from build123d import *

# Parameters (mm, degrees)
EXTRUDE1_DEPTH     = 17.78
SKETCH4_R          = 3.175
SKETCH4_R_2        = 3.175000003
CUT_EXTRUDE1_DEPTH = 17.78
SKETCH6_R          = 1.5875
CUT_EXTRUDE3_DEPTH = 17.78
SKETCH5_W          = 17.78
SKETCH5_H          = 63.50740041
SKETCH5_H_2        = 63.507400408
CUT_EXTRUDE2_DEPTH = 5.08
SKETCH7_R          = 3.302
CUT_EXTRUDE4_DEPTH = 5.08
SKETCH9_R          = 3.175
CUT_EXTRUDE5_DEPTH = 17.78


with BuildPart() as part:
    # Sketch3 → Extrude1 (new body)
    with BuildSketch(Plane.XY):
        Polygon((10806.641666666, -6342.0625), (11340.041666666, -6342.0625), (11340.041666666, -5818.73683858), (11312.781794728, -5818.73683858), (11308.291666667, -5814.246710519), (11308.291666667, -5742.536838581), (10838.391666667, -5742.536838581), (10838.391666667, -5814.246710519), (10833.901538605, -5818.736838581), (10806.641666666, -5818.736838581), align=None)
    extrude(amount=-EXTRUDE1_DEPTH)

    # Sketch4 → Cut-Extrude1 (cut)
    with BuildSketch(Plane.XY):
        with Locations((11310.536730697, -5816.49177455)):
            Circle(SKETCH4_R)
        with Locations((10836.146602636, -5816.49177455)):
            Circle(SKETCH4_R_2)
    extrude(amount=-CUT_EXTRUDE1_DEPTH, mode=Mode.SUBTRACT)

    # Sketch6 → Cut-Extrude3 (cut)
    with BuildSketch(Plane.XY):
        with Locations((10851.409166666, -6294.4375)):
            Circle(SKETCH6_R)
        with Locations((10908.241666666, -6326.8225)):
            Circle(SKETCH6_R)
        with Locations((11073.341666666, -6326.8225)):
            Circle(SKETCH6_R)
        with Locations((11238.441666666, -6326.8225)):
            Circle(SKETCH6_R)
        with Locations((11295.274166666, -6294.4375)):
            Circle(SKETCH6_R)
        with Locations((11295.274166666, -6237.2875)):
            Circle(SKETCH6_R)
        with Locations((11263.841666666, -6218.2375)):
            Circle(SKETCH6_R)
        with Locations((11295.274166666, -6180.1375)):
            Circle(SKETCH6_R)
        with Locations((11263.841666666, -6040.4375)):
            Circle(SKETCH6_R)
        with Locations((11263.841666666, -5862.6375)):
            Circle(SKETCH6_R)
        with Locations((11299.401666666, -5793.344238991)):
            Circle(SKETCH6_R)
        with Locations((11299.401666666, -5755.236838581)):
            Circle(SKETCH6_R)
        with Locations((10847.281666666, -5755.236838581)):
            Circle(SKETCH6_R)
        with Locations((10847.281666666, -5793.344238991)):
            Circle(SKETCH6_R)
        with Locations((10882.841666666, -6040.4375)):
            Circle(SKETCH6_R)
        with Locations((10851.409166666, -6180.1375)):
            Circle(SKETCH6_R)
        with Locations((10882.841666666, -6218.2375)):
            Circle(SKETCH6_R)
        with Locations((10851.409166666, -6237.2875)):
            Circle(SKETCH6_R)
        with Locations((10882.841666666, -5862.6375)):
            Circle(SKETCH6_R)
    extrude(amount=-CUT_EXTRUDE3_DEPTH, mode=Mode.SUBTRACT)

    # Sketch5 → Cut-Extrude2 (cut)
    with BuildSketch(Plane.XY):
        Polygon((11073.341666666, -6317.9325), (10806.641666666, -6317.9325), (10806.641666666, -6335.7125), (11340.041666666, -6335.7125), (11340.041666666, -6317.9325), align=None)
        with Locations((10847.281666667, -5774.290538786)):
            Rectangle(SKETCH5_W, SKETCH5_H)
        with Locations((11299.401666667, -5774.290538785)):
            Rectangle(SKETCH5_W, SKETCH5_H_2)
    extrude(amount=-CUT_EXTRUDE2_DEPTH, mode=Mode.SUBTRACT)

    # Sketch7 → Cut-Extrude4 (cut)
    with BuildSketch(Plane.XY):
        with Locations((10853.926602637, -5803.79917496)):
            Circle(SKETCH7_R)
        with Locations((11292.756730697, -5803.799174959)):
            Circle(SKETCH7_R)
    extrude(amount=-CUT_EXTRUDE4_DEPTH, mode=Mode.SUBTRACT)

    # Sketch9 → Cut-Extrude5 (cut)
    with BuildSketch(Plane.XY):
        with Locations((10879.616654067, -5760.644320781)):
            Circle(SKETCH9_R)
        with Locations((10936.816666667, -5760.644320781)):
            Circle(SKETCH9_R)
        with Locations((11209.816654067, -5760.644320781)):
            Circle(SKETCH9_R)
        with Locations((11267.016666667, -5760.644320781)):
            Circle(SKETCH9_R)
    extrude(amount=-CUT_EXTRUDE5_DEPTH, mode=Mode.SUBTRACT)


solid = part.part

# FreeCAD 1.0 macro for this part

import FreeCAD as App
import Part
import Sketcher

V = App.Vector
Q = App.Units.Quantity

doc = App.newDocument("Part")
body = doc.addObject("PartDesign::Body", "Body")

sketch1 = doc.addObject("Sketcher::SketchObject", "Sketch")
body.addObject(sketch1)
sketch1.AttachmentSupport = (doc.XY_Plane, [""])
sketch1.MapMode = "FlatFace"
sketch1.addGeometry(Part.LineSegment(V(10807, -6342, 0), V(11340, -6342, 0)), False)
sketch1.addGeometry(Part.LineSegment(V(11340, -6342, 0), V(11340, -5819, 0)), False)
sketch1.addGeometry(Part.LineSegment(V(11340, -5819, 0), V(11313, -5819, 0)), False)
sketch1.addGeometry(Part.LineSegment(V(11313, -5819, 0), V(11308, -5814, 0)), False)
sketch1.addGeometry(Part.LineSegment(V(11308, -5814, 0), V(11308, -5743, 0)), False)
sketch1.addGeometry(Part.LineSegment(V(11308, -5743, 0), V(10838, -5743, 0)), False)
sketch1.addGeometry(Part.LineSegment(V(10838, -5743, 0), V(10838, -5814, 0)), False)
sketch1.addGeometry(Part.LineSegment(V(10838, -5814, 0), V(10834, -5819, 0)), False)
sketch1.addGeometry(Part.LineSegment(V(10834, -5819, 0), V(10807, -5819, 0)), False)
sketch1.addGeometry(Part.LineSegment(V(10807, -5819, 0), V(10807, -6342, 0)), False)
sketch1.addConstraint(Sketcher.Constraint("Coincident", 0, 2, 1, 1))
sketch1.addConstraint(Sketcher.Constraint("Coincident", 1, 2, 2, 1))
sketch1.addConstraint(Sketcher.Constraint("Coincident", 2, 2, 3, 1))
sketch1.addConstraint(Sketcher.Constraint("Coincident", 3, 2, 4, 1))
sketch1.addConstraint(Sketcher.Constraint("Coincident", 4, 2, 5, 1))
sketch1.addConstraint(Sketcher.Constraint("Coincident", 5, 2, 6, 1))
sketch1.addConstraint(Sketcher.Constraint("Coincident", 6, 2, 7, 1))
sketch1.addConstraint(Sketcher.Constraint("Coincident", 7, 2, 8, 1))
sketch1.addConstraint(Sketcher.Constraint("Coincident", 8, 2, 9, 1))
sketch1.addConstraint(Sketcher.Constraint("Coincident", 9, 2, 0, 1))
sketch1.addConstraint(Sketcher.Constraint("Horizontal", 0))
sketch1.addConstraint(Sketcher.Constraint("Vertical", 1))
sketch1.addConstraint(Sketcher.Constraint("Horizontal", 2))
sketch1.addConstraint(Sketcher.Constraint("Vertical", 4))
sketch1.addConstraint(Sketcher.Constraint("Horizontal", 5))
sketch1.addConstraint(Sketcher.Constraint("Vertical", 6))
sketch1.addConstraint(Sketcher.Constraint("Horizontal", 8))
sketch1.addConstraint(Sketcher.Constraint("Vertical", 9))
sketch1.addConstraint(Sketcher.Constraint("Perpendicular", 3, 7))
sketch1.addConstraint(Sketcher.Constraint("Horizontal", 3, 2, 6, 2))
sketch1.addConstraint(Sketcher.Constraint("Horizontal", 2, 2, 7, 2))
sketch1.addConstraint(Sketcher.Constraint("Equal", 2, 8))
sketch1.addConstraint(Sketcher.Constraint("Equal", 3, 7))
sketch1.addConstraint(Sketcher.Constraint("DistanceX", 0, 1, 0, 2, Q("21 in")))
sketch1.addConstraint(Sketcher.Constraint("DistanceX", 5, 2, 5, 1, Q("18.5 in")))
sketch1.addConstraint(Sketcher.Constraint("DistanceY", 2, 2, 4, 2, Q("3 in")))
sketch1.addConstraint(Sketcher.Constraint("Distance", 3, Q("0.25 in")))
sketch1.addConstraint(Sketcher.Constraint("DistanceY", 0, 2, -1, 1, Q("249.6875 in")))
sketch1.addConstraint(Sketcher.Constraint("DistanceY", 1, 1, 1, 2, 523.325661))
sketch1.addConstraint(Sketcher.Constraint("DistanceX", -1, 1, 7, 2, 10833.901539))
pad1 = doc.addObject("PartDesign::Pad", "Pad")
body.addObject(pad1)
pad1.Profile = sketch1
pad1.Length = Q("0.7 in")
pad1.Reversed = True

sketch2 = doc.addObject("Sketcher::SketchObject", "Sketch001")
body.addObject(sketch2)
sketch2.AttachmentSupport = (doc.XY_Plane, [""])
sketch2.MapMode = "FlatFace"
sketch2.addGeometry(Part.Circle(V(11310.5, -5816.5, 0), V(0, 0, 1), 3.2), False)
sketch2.addGeometry(Part.Circle(V(10836.1, -5816.5, 0), V(0, 0, 1), 3.2), False)
sketch2.addConstraint(Sketcher.Constraint("Equal", 0, 1))
sketch2.addConstraint(Sketcher.Constraint("Horizontal", 0, 3, 1, 3))
sketch2.addConstraint(Sketcher.Constraint("Diameter", 0, Q("0.25 in")))
sketch2.addConstraint(Sketcher.Constraint("DistanceX", -1, 1, 0, 3, 11310.536731))
sketch2.addConstraint(Sketcher.Constraint("DistanceX", 1, 3, 0, 3, 474.390128))
sketch2.addConstraint(Sketcher.Constraint("DistanceY", 0, 3, -1, 1, 5816.491775))
pocket1 = doc.addObject("PartDesign::Pocket", "Pocket")
body.addObject(pocket1)
pocket1.Profile = sketch2
pocket1.Length = Q("0.7 in")

sketch3 = doc.addObject("Sketcher::SketchObject", "Sketch002")
body.addObject(sketch3)
sketch3.AttachmentSupport = (doc.XY_Plane, [""])
sketch3.MapMode = "FlatFace"
sketch3.addGeometry(Part.Circle(V(10851.4, -6294.4, 0), V(0, 0, 1), 1.6), False)
sketch3.addGeometry(Part.Circle(V(10908.2, -6326.8, 0), V(0, 0, 1), 1.6), False)
sketch3.addGeometry(Part.Circle(V(11073.3, -6326.8, 0), V(0, 0, 1), 1.6), False)
sketch3.addGeometry(Part.Circle(V(11238.4, -6326.8, 0), V(0, 0, 1), 1.6), False)
sketch3.addGeometry(Part.Circle(V(11295.3, -6294.4, 0), V(0, 0, 1), 1.6), False)
sketch3.addGeometry(Part.Circle(V(11295.3, -6237.3, 0), V(0, 0, 1), 1.6), False)
sketch3.addGeometry(Part.Circle(V(11263.8, -6218.2, 0), V(0, 0, 1), 1.6), False)
sketch3.addGeometry(Part.Circle(V(11295.3, -6180.1, 0), V(0, 0, 1), 1.6), False)
sketch3.addGeometry(Part.Circle(V(11263.8, -6040.4, 0), V(0, 0, 1), 1.6), False)
sketch3.addGeometry(Part.Circle(V(11263.8, -5862.6, 0), V(0, 0, 1), 1.6), False)
sketch3.addGeometry(Part.Circle(V(11299.4, -5793.3, 0), V(0, 0, 1), 1.6), False)
sketch3.addGeometry(Part.Circle(V(11299.4, -5755.2, 0), V(0, 0, 1), 1.6), False)
sketch3.addGeometry(Part.Circle(V(10847.3, -5755.2, 0), V(0, 0, 1), 1.6), False)
sketch3.addGeometry(Part.Circle(V(10847.3, -5793.3, 0), V(0, 0, 1), 1.6), False)
sketch3.addGeometry(Part.Circle(V(10882.8, -6040.4, 0), V(0, 0, 1), 1.6), False)
sketch3.addGeometry(Part.Circle(V(10851.4, -6180.1, 0), V(0, 0, 1), 1.6), False)
sketch3.addGeometry(Part.Circle(V(10882.8, -6218.2, 0), V(0, 0, 1), 1.6), False)
sketch3.addGeometry(Part.Circle(V(10851.4, -6237.3, 0), V(0, 0, 1), 1.6), False)
sketch3.addGeometry(Part.Circle(V(10882.8, -5862.6, 0), V(0, 0, 1), 1.6), False)
sketch3.addConstraint(Sketcher.Constraint("Equal", 0, 1))
sketch3.addConstraint(Sketcher.Constraint("Equal", 1, 2))
sketch3.addConstraint(Sketcher.Constraint("Equal", 2, 3))
sketch3.addConstraint(Sketcher.Constraint("Equal", 3, 4))
sketch3.addConstraint(Sketcher.Constraint("Equal", 4, 5))
sketch3.addConstraint(Sketcher.Constraint("Equal", 5, 6))
sketch3.addConstraint(Sketcher.Constraint("Equal", 6, 7))
sketch3.addConstraint(Sketcher.Constraint("Equal", 7, 8))
sketch3.addConstraint(Sketcher.Constraint("Equal", 8, 9))
sketch3.addConstraint(Sketcher.Constraint("Equal", 9, 10))
sketch3.addConstraint(Sketcher.Constraint("Equal", 10, 11))
sketch3.addConstraint(Sketcher.Constraint("Equal", 11, 12))
sketch3.addConstraint(Sketcher.Constraint("Equal", 12, 13))
sketch3.addConstraint(Sketcher.Constraint("Equal", 13, 14))
sketch3.addConstraint(Sketcher.Constraint("Equal", 14, 15))
sketch3.addConstraint(Sketcher.Constraint("Equal", 15, 16))
sketch3.addConstraint(Sketcher.Constraint("Equal", 16, 17))
sketch3.addConstraint(Sketcher.Constraint("Equal", 17, 18))
sketch3.addConstraint(Sketcher.Constraint("Horizontal", 1, 3, 2, 3))
sketch3.addConstraint(Sketcher.Constraint("Horizontal", 2, 3, 3, 3))
sketch3.addConstraint(Sketcher.Constraint("Horizontal", 0, 3, 4, 3))
sketch3.addConstraint(Sketcher.Constraint("Horizontal", 11, 3, 12, 3))
sketch3.addConstraint(Sketcher.Constraint("Horizontal", 10, 3, 13, 3))
sketch3.addConstraint(Sketcher.Constraint("Horizontal", 8, 3, 14, 3))
sketch3.addConstraint(Sketcher.Constraint("Horizontal", 7, 3, 15, 3))
sketch3.addConstraint(Sketcher.Constraint("Horizontal", 6, 3, 16, 3))
sketch3.addConstraint(Sketcher.Constraint("Horizontal", 5, 3, 17, 3))
sketch3.addConstraint(Sketcher.Constraint("Horizontal", 9, 3, 18, 3))
sketch3.addConstraint(Sketcher.Constraint("Vertical", 4, 3, 5, 3))
sketch3.addConstraint(Sketcher.Constraint("Vertical", 5, 3, 7, 3))
sketch3.addConstraint(Sketcher.Constraint("Vertical", 6, 3, 8, 3))
sketch3.addConstraint(Sketcher.Constraint("Vertical", 8, 3, 9, 3))
sketch3.addConstraint(Sketcher.Constraint("Vertical", 10, 3, 11, 3))
sketch3.addConstraint(Sketcher.Constraint("Vertical", 12, 3, 13, 3))
sketch3.addConstraint(Sketcher.Constraint("Vertical", 0, 3, 15, 3))
sketch3.addConstraint(Sketcher.Constraint("Vertical", 14, 3, 16, 3))
sketch3.addConstraint(Sketcher.Constraint("Vertical", 15, 3, 17, 3))
sketch3.addConstraint(Sketcher.Constraint("Vertical", 16, 3, 18, 3))
sketch3.addConstraint(Sketcher.Constraint("Diameter", 0, Q("0.125 in")))
sketch3.addConstraint(Sketcher.Constraint("DistanceX", 1, 3, 3, 3, Q("13 in")))
sketch3.addConstraint(Sketcher.Constraint("DistanceY", 4, 3, 6, 3, Q("3 in")))
sketch3.addConstraint(Sketcher.Constraint("DistanceX", 3, 3, 6, 3, Q("1 in")))
sketch3.addConstraint(Sketcher.Constraint("DistanceY", 6, 3, 8, 3, Q("7 in")))
sketch3.addConstraint(Sketcher.Constraint("DistanceY", 8, 3, 9, 3, Q("7 in")))
sketch3.addConstraint(Sketcher.Constraint("DistanceX", 14, 3, 1, 3, Q("1 in")))
sketch3.addConstraint(Sketcher.Constraint("DistanceX", 1, 3, 2, 3, Q("6.5 in")))
sketch3.addConstraint(Sketcher.Constraint("DistanceY", 6, 3, 7, 3, Q("1.5 in")))
sketch3.addConstraint(Sketcher.Constraint("DistanceX", 9, 3, 10, 3, Q("1.4 in")))
sketch3.addConstraint(Sketcher.Constraint("DistanceX", 12, 3, 9, 3, Q("16.4 in")))
sketch3.addConstraint(Sketcher.Constraint("DistanceY", 4, 3, 5, 3, Q("2.25 in")))
sketch3.addConstraint(Sketcher.Constraint("DistanceY", 0, 3, -1, 1, Q("247.8125 in")))
sketch3.addConstraint(Sketcher.Constraint("DistanceY", 1, 3, 0, 3, Q("1.275 in")))
sketch3.addConstraint(Sketcher.Constraint("DistanceX", 0, 3, 4, 3, Q("17.475 in")))
sketch3.addConstraint(Sketcher.Constraint("DistanceX", 0, 3, 1, 3, Q("2.2375 in")))
sketch3.addConstraint(Sketcher.Constraint("DistanceY", 10, 3, 11, 3, 38.1074))
sketch3.addConstraint(Sketcher.Constraint("DistanceY", 10, 3, -1, 1, 5793.344239))
sketch3.addConstraint(Sketcher.Constraint("DistanceX", -1, 1, 0, 3, 10851.409167))
pocket2 = doc.addObject("PartDesign::Pocket", "Pocket001")
body.addObject(pocket2)
pocket2.Profile = sketch3
pocket2.Length = Q("0.7 in")

sketch4 = doc.addObject("Sketcher::SketchObject", "Sketch003")
body.addObject(sketch4)
sketch4.AttachmentSupport = (doc.XY_Plane, [""])
sketch4.MapMode = "FlatFace"
sketch4.addGeometry(Part.LineSegment(V(10807, -6318, 0), V(10807, -6336, 0)), False)
sketch4.addGeometry(Part.LineSegment(V(10807, -6336, 0), V(11340, -6336, 0)), False)
sketch4.addGeometry(Part.LineSegment(V(11340, -6336, 0), V(11340, -6318, 0)), False)
sketch4.addGeometry(Part.LineSegment(V(11340, -6318, 0), V(10807, -6318, 0)), False)
sketch4.addGeometry(Part.LineSegment(V(10838, -5743, 0), V(10838, -5806, 0)), False)
sketch4.addGeometry(Part.LineSegment(V(10838, -5806, 0), V(10856, -5806, 0)), False)
sketch4.addGeometry(Part.LineSegment(V(10856, -5806, 0), V(10856, -5743, 0)), False)
sketch4.addGeometry(Part.LineSegment(V(10856, -5743, 0), V(10838, -5743, 0)), False)
sketch4.addGeometry(Part.LineSegment(V(11291, -5743, 0), V(11291, -5806, 0)), False)
sketch4.addGeometry(Part.LineSegment(V(11291, -5806, 0), V(11308, -5806, 0)), False)
sketch4.addGeometry(Part.LineSegment(V(11308, -5806, 0), V(11308, -5743, 0)), False)
sketch4.addGeometry(Part.LineSegment(V(11308, -5743, 0), V(11291, -5743, 0)), False)
sketch4.addConstraint(Sketcher.Constraint("Coincident", 0, 2, 1, 1))
sketch4.addConstraint(Sketcher.Constraint("Coincident", 1, 2, 2, 1))
sketch4.addConstraint(Sketcher.Constraint("Coincident", 2, 2, 3, 1))
sketch4.addConstraint(Sketcher.Constraint("Coincident", 3, 2, 0, 1))
sketch4.addConstraint(Sketcher.Constraint("Coincident", 4, 2, 5, 1))
sketch4.addConstraint(Sketcher.Constraint("Coincident", 5, 2, 6, 1))
sketch4.addConstraint(Sketcher.Constraint("Coincident", 6, 2, 7, 1))
sketch4.addConstraint(Sketcher.Constraint("Coincident", 7, 2, 4, 1))
sketch4.addConstraint(Sketcher.Constraint("Coincident", 8, 2, 9, 1))
sketch4.addConstraint(Sketcher.Constraint("Coincident", 9, 2, 10, 1))
sketch4.addConstraint(Sketcher.Constraint("Coincident", 10, 2, 11, 1))
sketch4.addConstraint(Sketcher.Constraint("Coincident", 11, 2, 8, 1))
sketch4.addConstraint(Sketcher.Constraint("Vertical", 0))
sketch4.addConstraint(Sketcher.Constraint("Horizontal", 1))
sketch4.addConstraint(Sketcher.Constraint("Vertical", 2))
sketch4.addConstraint(Sketcher.Constraint("Horizontal", 3))
sketch4.addConstraint(Sketcher.Constraint("Vertical", 4))
sketch4.addConstraint(Sketcher.Constraint("Horizontal", 5))
sketch4.addConstraint(Sketcher.Constraint("Vertical", 6))
sketch4.addConstraint(Sketcher.Constraint("Horizontal", 7))
sketch4.addConstraint(Sketcher.Constraint("Vertical", 8))
sketch4.addConstraint(Sketcher.Constraint("Horizontal", 9))
sketch4.addConstraint(Sketcher.Constraint("Vertical", 10))
sketch4.addConstraint(Sketcher.Constraint("Horizontal", 11))
sketch4.addConstraint(Sketcher.Constraint("Horizontal", 5, 2, 8, 2))
sketch4.addConstraint(Sketcher.Constraint("Horizontal", 7, 2, 10, 2))
sketch4.addConstraint(Sketcher.Constraint("Equal", 7, 9))
sketch4.addConstraint(Sketcher.Constraint("Equal", 11, 0))
sketch4.addConstraint(Sketcher.Constraint("DistanceX", 1, 1, 1, 2, Q("21 in")))
sketch4.addConstraint(Sketcher.Constraint("DistanceX", 5, 1, 5, 2, Q("0.7 in")))
sketch4.addConstraint(Sketcher.Constraint("DistanceX", 5, 2, 8, 2, Q("17.1 in")))
sketch4.addConstraint(Sketcher.Constraint("DistanceX", 3, 2, 4, 2, Q("1.25 in")))
sketch4.addConstraint(Sketcher.Constraint("DistanceY", 0, 2, -1, 1, Q("249.4375 in")))
sketch4.addConstraint(Sketcher.Constraint("DistanceY", 4, 2, 4, 1, 63.5074))
sketch4.addConstraint(Sketcher.Constraint("DistanceY", 4, 2, -1, 1, 5806.044239))
sketch4.addConstraint(Sketcher.Constraint("DistanceX", -1, 1, 0, 2, 10806.641667))
pocket3 = doc.addObject("PartDesign::Pocket", "Pocket002")
body.addObject(pocket3)
pocket3.Profile = sketch4
pocket3.Length = Q("0.2 in")

sketch5 = doc.addObject("Sketcher::SketchObject", "Sketch004")
body.addObject(sketch5)
sketch5.AttachmentSupport = (doc.XY_Plane, [""])
sketch5.MapMode = "FlatFace"
sketch5.addGeometry(Part.Circle(V(10853.926603, -5803.799175, 0), V(0, 0, 1), 3.302), False)
sketch5.addGeometry(Part.Circle(V(11292.756731, -5803.799175, 0), V(0, 0, 1), 3.302), False)
sketch5.addConstraint(Sketcher.Constraint("Equal", 0, 1))
sketch5.addConstraint(Sketcher.Constraint("Horizontal", 0, 3, 1, 3))
sketch5.addConstraint(Sketcher.Constraint("Diameter", 0, Q("0.26 in")))
sketch5.addConstraint(Sketcher.Constraint("DistanceX", -1, 1, 1, 3, 11292.756731))
sketch5.addConstraint(Sketcher.Constraint("DistanceX", 0, 3, 1, 3, 438.830128))
sketch5.addConstraint(Sketcher.Constraint("DistanceY", 0, 3, -1, 1, 5803.799175))
pocket4 = doc.addObject("PartDesign::Pocket", "Pocket003")
body.addObject(pocket4)
pocket4.Profile = sketch5
pocket4.Length = Q("0.2 in")

sketch6 = doc.addObject("Sketcher::SketchObject", "Sketch005")
body.addObject(sketch6)
sketch6.AttachmentSupport = (doc.XY_Plane, [""])
sketch6.MapMode = "FlatFace"
sketch6.addGeometry(Part.Circle(V(10879.616654, -5760.644321, 0), V(0, 0, 1), 3.175), False)
sketch6.addGeometry(Part.Circle(V(10936.816667, -5760.644321, 0), V(0, 0, 1), 3.175), False)
sketch6.addGeometry(Part.Circle(V(11209.816654, -5760.644321, 0), V(0, 0, 1), 3.175), False)
sketch6.addGeometry(Part.Circle(V(11267.016667, -5760.644321, 0), V(0, 0, 1), 3.175), False)
sketch6.addConstraint(Sketcher.Constraint("Equal", 0, 1))
sketch6.addConstraint(Sketcher.Constraint("Equal", 1, 2))
sketch6.addConstraint(Sketcher.Constraint("Equal", 2, 3))
sketch6.addConstraint(Sketcher.Constraint("Horizontal", 0, 3, 1, 3))
sketch6.addConstraint(Sketcher.Constraint("Horizontal", 1, 3, 2, 3))
sketch6.addConstraint(Sketcher.Constraint("Horizontal", 2, 3, 3, 3))
sketch6.addConstraint(Sketcher.Constraint("Diameter", 0, Q("0.25 in")))
sketch6.addConstraint(Sketcher.Constraint("DistanceX", 0, 3, 2, 3, Q("13 in")))
sketch6.addConstraint(Sketcher.Constraint("DistanceX", 1, 3, 3, 3, Q("13 in")))
sketch6.addConstraint(Sketcher.Constraint("DistanceY", 0, 3, -1, 1, 5760.644321))
sketch6.addConstraint(Sketcher.Constraint("DistanceX", -1, 1, 0, 3, 10879.616654))
sketch6.addConstraint(Sketcher.Constraint("DistanceX", -1, 1, 1, 3, 10936.816667))
pocket5 = doc.addObject("PartDesign::Pocket", "Pocket004")
body.addObject(pocket5)
pocket5.Profile = sketch6
pocket5.Length = Q("0.7 in")

doc.recompute()
